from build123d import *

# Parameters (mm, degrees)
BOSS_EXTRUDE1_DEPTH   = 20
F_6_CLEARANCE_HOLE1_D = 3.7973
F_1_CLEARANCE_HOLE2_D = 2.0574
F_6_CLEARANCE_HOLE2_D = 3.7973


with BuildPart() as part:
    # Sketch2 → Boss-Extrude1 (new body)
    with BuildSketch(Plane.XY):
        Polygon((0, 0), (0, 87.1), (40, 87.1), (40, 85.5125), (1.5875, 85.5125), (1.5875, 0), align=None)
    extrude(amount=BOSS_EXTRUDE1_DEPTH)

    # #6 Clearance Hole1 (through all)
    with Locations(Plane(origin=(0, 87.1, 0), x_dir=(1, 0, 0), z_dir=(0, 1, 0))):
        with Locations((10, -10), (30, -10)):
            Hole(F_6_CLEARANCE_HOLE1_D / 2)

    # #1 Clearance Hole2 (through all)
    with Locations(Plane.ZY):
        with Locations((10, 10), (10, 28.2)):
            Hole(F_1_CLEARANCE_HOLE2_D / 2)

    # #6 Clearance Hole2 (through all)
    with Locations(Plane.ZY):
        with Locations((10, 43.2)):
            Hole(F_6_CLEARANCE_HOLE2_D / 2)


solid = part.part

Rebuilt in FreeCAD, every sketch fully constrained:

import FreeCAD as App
import Part
import Sketcher

V = App.Vector


def add_polygon(sketch, points):
    """Adds a closed chain of lines whose ends are joined by coincident constraints."""
    first, n = sketch.GeometryCount, len(points)
    for a, b in zip(points, points[1:] + points[:1]):
        sketch.addGeometry(Part.LineSegment(App.Vector(*a, 0), App.Vector(*b, 0)), False)
    for i in range(n):
        sketch.addConstraint(Sketcher.Constraint("Coincident", first + i, 2, first + (i + 1) % n, 1))

doc = App.newDocument("Part")
params = doc.addObject("Spreadsheet::Sheet", "Params")
for row, (alias, value) in enumerate([
    ("sketch1_width", "40 mm"),
    ("sketch1_height", "87.1 mm"),
    ("pad1_length", "20 mm"),
    ("hole_diameter", "3.7973 mm"),
    ("hole2_diameter", "2.0574 mm"),
    ("hole3_diameter", "3.7973 mm"),
], start=1):
    params.set(f"A{row}", alias)
    params.set(f"B{row}", "=" + value)
    params.setAlias(f"B{row}", alias)

body = doc.addObject("PartDesign::Body", "Body")

# Sketch on XY plane
sketch1 = doc.addObject("Sketcher::SketchObject", "Sketch")
body.addObject(sketch1)
sketch1.AttachmentSupport = (doc.XY_Plane, [""])
sketch1.MapMode = "FlatFace"
add_polygon(sketch1, [(0, 87.1), (0, 0), (1.6, 0), (1.6, 85.5), (40, 85.5), (40, 87.1)])  # lines 0-5
sketch1.addConstraint([
    Sketcher.Constraint("Vertical", 0),
    Sketcher.Constraint("Horizontal", 1),
    Sketcher.Constraint("Vertical", 2),
    Sketcher.Constraint("Horizontal", 3),
    Sketcher.Constraint("Vertical", 4),
    Sketcher.Constraint("Horizontal", 5),
    Sketcher.Constraint("Coincident", 0, 2, -1, 1),
    Sketcher.Constraint("Equal", 1, 4),
    Sketcher.Constraint("DistanceX", 5, 2, 5, 1, 40.0),
    Sketcher.Constraint("DistanceY", 0, 2, 0, 1, 87.1),
    Sketcher.Constraint("DistanceX", 1, 1, 1, 2, 1.5875),
])
sketch1.setExpression("Constraints[14]", "Params.sketch1_width")
sketch1.setExpression("Constraints[15]", "Params.sketch1_height")
pad1 = doc.addObject("PartDesign::Pad", "Pad")
body.addObject(pad1)
pad1.Profile = sketch1
pad1.setExpression("Length", "Params.pad1_length")

# Sketch on XZ plane
sketch2 = doc.addObject("Sketcher::SketchObject", "Sketch001")
body.addObject(sketch2)
sketch2.AttachmentSupport = (doc.XZ_Plane, [""])
sketch2.MapMode = "FlatFace"
sketch2.AttachmentOffset = App.Placement(V(0, 0, -87.1), App.Rotation())
sketch2.addGeometry([
    Part.Circle(V(10, 10, 0), V(0, 0, 1), 1.9),
    Part.Circle(V(30, 10, 0), V(0, 0, 1), 1.9),
], False)
sketch2.addConstraint([
    Sketcher.Constraint("Equal", 0, 1),
    Sketcher.Constraint("Horizontal", 0, 3, 1, 3),
    Sketcher.Constraint("DistanceX", -1, 1, 0, 3, 10.0),
    Sketcher.Constraint("DistanceY", -1, 1, 0, 3, 10.0),
    Sketcher.Constraint("DistanceX", -1, 1, 1, 3, 30.0),
    Sketcher.Constraint("Diameter", 0, 3.7973),
])
doc.recompute()
hole = doc.addObject("PartDesign::Hole", "Hole")
body.addObject(hole)
hole.Profile = sketch2
hole.ThreadType = "None"
hole.setExpression("Diameter", "Params.hole_diameter")
hole.DepthType = "ThroughAll"
hole.Reversed = True

# Sketch on YZ plane
sketch3 = doc.addObject("Sketcher::SketchObject", "Sketch002")
body.addObject(sketch3)
sketch3.AttachmentSupport = (doc.YZ_Plane, [""])
sketch3.MapMode = "FlatFace"
sketch3.addGeometry([
    Part.Circle(V(10, 10, 0), V(0, 0, 1), 1),
    Part.Circle(V(28.2, 10, 0), V(0, 0, 1), 1),
], False)
sketch3.addConstraint([
    Sketcher.Constraint("Equal", 0, 1),
    Sketcher.Constraint("Horizontal", 0, 3, 1, 3),
    Sketcher.Constraint("DistanceX", -1, 1, 0, 3, 10.0),
    Sketcher.Constraint("DistanceY", -1, 1, 0, 3, 10.0),
    Sketcher.Constraint("Diameter", 0, 2.0574),
    Sketcher.Constraint("DistanceX", -1, 1, 1, 3, 28.2),
])
doc.recompute()
hole2 = doc.addObject("PartDesign::Hole", "Hole001")
body.addObject(hole2)
hole2.Profile = sketch3
hole2.ThreadType = "None"
hole2.setExpression("Diameter", "Params.hole2_diameter")
hole2.DepthType = "ThroughAll"
hole2.Reversed = True

# Sketch on YZ plane
sketch4 = doc.addObject("Sketcher::SketchObject", "Sketch003")
body.addObject(sketch4)
sketch4.AttachmentSupport = (doc.YZ_Plane, [""])
sketch4.MapMode = "FlatFace"
sketch4.addGeometry(Part.Circle(V(43.2, 10, 0), V(0, 0, 1), 1.9), False)
sketch4.addConstraint([
    Sketcher.Constraint("DistanceY", -1, 1, 0, 3, 10.0),
    Sketcher.Constraint("Diameter", 0, 3.7973),
    Sketcher.Constraint("DistanceX", -1, 1, 0, 3, 43.2),
])
doc.recompute()
hole3 = doc.addObject("PartDesign::Hole", "Hole002")
body.addObject(hole3)
hole3.Profile = sketch4
hole3.ThreadType = "None"
hole3.setExpression("Diameter", "Params.hole3_diameter")
hole3.DepthType = "ThroughAll"
hole3.Reversed = True

doc.recompute()
